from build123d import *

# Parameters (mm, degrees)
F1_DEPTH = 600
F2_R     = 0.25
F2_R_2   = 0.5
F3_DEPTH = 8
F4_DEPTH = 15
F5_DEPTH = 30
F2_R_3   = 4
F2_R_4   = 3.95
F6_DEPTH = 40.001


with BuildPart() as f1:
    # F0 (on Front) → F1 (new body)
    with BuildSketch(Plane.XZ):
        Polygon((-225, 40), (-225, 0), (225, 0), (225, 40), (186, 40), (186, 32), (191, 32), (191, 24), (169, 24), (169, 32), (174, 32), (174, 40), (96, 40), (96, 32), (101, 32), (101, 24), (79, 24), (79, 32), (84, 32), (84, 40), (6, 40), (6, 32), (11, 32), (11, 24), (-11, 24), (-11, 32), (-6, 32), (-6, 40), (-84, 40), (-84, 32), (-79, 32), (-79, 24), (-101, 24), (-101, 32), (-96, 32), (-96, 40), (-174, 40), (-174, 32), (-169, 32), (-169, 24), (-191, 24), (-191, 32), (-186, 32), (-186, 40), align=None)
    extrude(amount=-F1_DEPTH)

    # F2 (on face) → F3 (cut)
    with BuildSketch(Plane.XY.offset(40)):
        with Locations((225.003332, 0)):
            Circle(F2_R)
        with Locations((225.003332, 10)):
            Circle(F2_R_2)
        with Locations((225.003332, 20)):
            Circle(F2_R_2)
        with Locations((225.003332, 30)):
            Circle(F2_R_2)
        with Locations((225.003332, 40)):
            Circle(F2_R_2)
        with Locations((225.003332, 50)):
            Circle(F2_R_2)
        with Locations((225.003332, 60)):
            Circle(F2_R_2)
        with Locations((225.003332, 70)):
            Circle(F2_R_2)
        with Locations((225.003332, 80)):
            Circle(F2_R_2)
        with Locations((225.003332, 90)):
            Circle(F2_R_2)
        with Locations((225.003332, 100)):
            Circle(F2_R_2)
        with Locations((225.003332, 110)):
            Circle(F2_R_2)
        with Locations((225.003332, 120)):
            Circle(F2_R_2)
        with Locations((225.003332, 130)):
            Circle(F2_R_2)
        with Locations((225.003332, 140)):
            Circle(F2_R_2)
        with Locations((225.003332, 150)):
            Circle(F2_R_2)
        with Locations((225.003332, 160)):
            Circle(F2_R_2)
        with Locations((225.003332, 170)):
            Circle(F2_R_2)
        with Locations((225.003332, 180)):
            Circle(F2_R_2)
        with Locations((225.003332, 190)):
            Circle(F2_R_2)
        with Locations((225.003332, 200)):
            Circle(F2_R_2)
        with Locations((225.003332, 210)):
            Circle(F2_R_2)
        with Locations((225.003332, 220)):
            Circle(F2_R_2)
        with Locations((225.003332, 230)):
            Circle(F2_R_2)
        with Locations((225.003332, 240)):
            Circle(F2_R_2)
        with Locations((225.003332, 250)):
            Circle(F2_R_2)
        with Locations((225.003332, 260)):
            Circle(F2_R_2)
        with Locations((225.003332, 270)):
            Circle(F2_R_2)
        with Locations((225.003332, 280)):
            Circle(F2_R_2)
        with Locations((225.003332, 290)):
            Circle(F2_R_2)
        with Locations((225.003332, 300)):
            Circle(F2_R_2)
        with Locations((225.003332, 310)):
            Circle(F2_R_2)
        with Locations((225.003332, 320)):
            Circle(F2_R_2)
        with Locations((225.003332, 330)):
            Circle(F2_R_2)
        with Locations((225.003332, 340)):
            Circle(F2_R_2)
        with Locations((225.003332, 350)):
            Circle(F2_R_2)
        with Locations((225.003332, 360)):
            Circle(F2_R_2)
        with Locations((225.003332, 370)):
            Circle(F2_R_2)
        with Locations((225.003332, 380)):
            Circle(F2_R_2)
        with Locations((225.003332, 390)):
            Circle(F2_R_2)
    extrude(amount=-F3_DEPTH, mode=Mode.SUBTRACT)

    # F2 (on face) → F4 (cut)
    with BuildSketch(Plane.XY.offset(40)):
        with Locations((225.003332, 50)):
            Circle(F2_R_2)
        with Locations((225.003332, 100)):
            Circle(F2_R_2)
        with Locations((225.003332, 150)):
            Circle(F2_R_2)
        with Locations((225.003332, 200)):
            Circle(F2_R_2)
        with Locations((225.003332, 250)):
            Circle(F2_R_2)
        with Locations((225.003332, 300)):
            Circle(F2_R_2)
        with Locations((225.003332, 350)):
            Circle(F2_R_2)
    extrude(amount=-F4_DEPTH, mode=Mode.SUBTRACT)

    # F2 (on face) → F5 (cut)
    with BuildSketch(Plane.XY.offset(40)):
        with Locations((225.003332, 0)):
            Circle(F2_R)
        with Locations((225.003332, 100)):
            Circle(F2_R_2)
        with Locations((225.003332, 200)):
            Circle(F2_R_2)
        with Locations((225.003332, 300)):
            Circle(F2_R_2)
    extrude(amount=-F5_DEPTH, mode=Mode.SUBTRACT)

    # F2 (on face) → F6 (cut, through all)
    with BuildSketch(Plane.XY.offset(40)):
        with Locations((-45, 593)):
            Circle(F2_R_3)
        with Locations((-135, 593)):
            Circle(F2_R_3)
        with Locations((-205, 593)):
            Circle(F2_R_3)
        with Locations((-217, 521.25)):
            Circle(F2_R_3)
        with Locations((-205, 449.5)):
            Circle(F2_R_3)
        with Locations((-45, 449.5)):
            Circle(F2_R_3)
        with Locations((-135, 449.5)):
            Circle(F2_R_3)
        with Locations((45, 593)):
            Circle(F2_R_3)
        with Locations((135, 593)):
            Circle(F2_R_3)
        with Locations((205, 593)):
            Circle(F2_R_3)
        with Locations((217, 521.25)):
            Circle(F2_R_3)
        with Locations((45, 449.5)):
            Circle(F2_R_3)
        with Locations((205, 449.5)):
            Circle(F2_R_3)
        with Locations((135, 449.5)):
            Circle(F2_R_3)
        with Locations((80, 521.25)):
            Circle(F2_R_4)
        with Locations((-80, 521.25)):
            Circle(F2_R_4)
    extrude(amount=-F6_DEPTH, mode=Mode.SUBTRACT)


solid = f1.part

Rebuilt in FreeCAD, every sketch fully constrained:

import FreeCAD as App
import Part
import Sketcher

V = App.Vector


def add_polygon(sketch, points):
    """Adds a closed chain of lines whose ends are joined by coincident constraints."""
    first, n = sketch.GeometryCount, len(points)
    for a, b in zip(points, points[1:] + points[:1]):
        sketch.addGeometry(Part.LineSegment(App.Vector(*a, 0), App.Vector(*b, 0)), False)
    for i in range(n):
        sketch.addConstraint(Sketcher.Constraint("Coincident", first + i, 2, first + (i + 1) % n, 1))

doc = App.newDocument("Part")
body = doc.addObject("PartDesign::Body", "Body")

# Sketch on XZ plane
sketch1 = doc.addObject("Sketcher::SketchObject", "Sketch")
body.addObject(sketch1)
sketch1.AttachmentSupport = (doc.XZ_Plane, [""])
sketch1.MapMode = "FlatFace"
add_polygon(sketch1, [(-225, 40), (-225, 0), (225, 0), (225, 40), (186, 40), (186, 32), (191, 32), (191, 24), (169, 24), (169, 32), (174, 32), (174, 40), (96, 40), (96, 32), (101, 32), (101, 24), (79, 24), (79, 32), (84, 32), (84, 40), (6, 40), (6, 32), (11, 32), (11, 24), (-11, 24), (-11, 32), (-6, 32), (-6, 40), (-84, 40), (-84, 32), (-79, 32), (-79, 24), (-101, 24), (-101, 32), (-96, 32), (-96, 40), (-174, 40), (-174, 32), (-169, 32), (-169, 24), (-191, 24), (-191, 32), (-186, 32), (-186, 40)])  # lines 0-43
sketch1.addConstraint([
    Sketcher.Constraint("Vertical", 0),
    Sketcher.Constraint("Horizontal", 1),
    Sketcher.Constraint("Vertical", 2),
    Sketcher.Constraint("Horizontal", 3),
    Sketcher.Constraint("Vertical", 4),
    Sketcher.Constraint("Horizontal", 5),
    Sketcher.Constraint("Vertical", 6),
    Sketcher.Constraint("Horizontal", 7),
    Sketcher.Constraint("Vertical", 8),
    Sketcher.Constraint("Horizontal", 9),
    Sketcher.Constraint("Vertical", 10),
    Sketcher.Constraint("Horizontal", 11),
    Sketcher.Constraint("Vertical", 12),
    Sketcher.Constraint("Horizontal", 13),
    Sketcher.Constraint("Vertical", 14),
    Sketcher.Constraint("Horizontal", 15),
    Sketcher.Constraint("Vertical", 16),
    Sketcher.Constraint("Horizontal", 17),
    Sketcher.Constraint("Vertical", 18),
    Sketcher.Constraint("Horizontal", 19),
    Sketcher.Constraint("Vertical", 20),
    Sketcher.Constraint("Horizontal", 21),
    Sketcher.Constraint("Vertical", 22),
    Sketcher.Constraint("Horizontal", 23),
    Sketcher.Constraint("Vertical", 24),
    Sketcher.Constraint("Horizontal", 25),
    Sketcher.Constraint("Vertical", 26),
    Sketcher.Constraint("Horizontal", 27),
    Sketcher.Constraint("Vertical", 28),
    Sketcher.Constraint("Horizontal", 29),
    Sketcher.Constraint("Vertical", 30),
    Sketcher.Constraint("Horizontal", 31),
    Sketcher.Constraint("Vertical", 32),
    Sketcher.Constraint("Horizontal", 33),
    Sketcher.Constraint("Vertical", 34),
    Sketcher.Constraint("Horizontal", 35),
    Sketcher.Constraint("Vertical", 36),
    Sketcher.Constraint("Horizontal", 37),
    Sketcher.Constraint("Vertical", 38),
    Sketcher.Constraint("Horizontal", 39),
    Sketcher.Constraint("Vertical", 40),
    Sketcher.Constraint("Horizontal", 41),
    Sketcher.Constraint("Vertical", 42),
    Sketcher.Constraint("Horizontal", 43),
    Sketcher.Constraint("Symmetric", 0, 2, 1, 2, -1, 1),
    Sketcher.Constraint("Symmetric", 21, 2, 24, 2, -2),
    Sketcher.Constraint("Symmetric", 19, 2, 26, 2, -2),
    Sketcher.Constraint("Symmetric", 17, 2, 28, 2, -2),
    Sketcher.Constraint("Symmetric", 15, 2, 30, 2, -2),
    Sketcher.Constraint("Symmetric", 13, 2, 32, 2, -2),
    Sketcher.Constraint("Symmetric", 11, 2, 34, 2, -2),
    Sketcher.Constraint("Symmetric", 9, 2, 36, 2, -2),
    Sketcher.Constraint("Symmetric", 7, 2, 38, 2, -2),
    Sketcher.Constraint("Symmetric", 5, 2, 40, 2, -2),
    Sketcher.Constraint("Symmetric", 3, 2, 42, 2, -2),
    Sketcher.Constraint("Horizontal", 5, 2, 8, 2),
    Sketcher.Constraint("Horizontal", 3, 2, 10, 2),
    Sketcher.Constraint("Horizontal", 9, 2, 12, 2),
    Sketcher.Constraint("Horizontal", 7, 2, 14, 2),
    Sketcher.Constraint("Horizontal", 13, 2, 16, 2),
    Sketcher.Constraint("Horizontal", 11, 2, 18, 2),
    Sketcher.Constraint("Horizontal", 17, 2, 20, 2),
    Sketcher.Constraint("Horizontal", 15, 2, 22, 2),
    Sketcher.Constraint("Equal", 5, 9),
    Sketcher.Constraint("Equal", 9, 13),
    Sketcher.Constraint("Equal", 7, 15),
    Sketcher.Constraint("Equal", 13, 17),
    Sketcher.Constraint("Equal", 11, 19),
    Sketcher.Constraint("Equal", 17, 21),
    Sketcher.Constraint("Equal", 15, 23),
    Sketcher.Constraint("Equal", 4, 6),
    Sketcher.Constraint("DistanceX", 1, 1, 1, 2, 450.0),
    Sketcher.Constraint("DistanceX", 3, 2, 3, 1, 39.0),
    Sketcher.Constraint("DistanceX", 5, 1, 5, 2, 5.0),
    Sketcher.Constraint("DistanceX", 7, 2, 7, 1, 22.0),
    Sketcher.Constraint("DistanceY", 0, 2, 0, 1, 40.0),
    Sketcher.Constraint("DistanceY", 4, 2, 4, 1, 8.0),
])
pad1 = doc.addObject("PartDesign::Pad", "Pad")
body.addObject(pad1)
pad1.Profile = sketch1
pad1.Length = 600
pad1.Reversed = True

# Sketch on XY plane
sketch2 = doc.addObject("Sketcher::SketchObject", "Sketch001")
body.addObject(sketch2)
sketch2.AttachmentSupport = (doc.XY_Plane, [""])
sketch2.MapMode = "FlatFace"
sketch2.AttachmentOffset = App.Placement(V(0, 0, 40), App.Rotation())
sketch2.addGeometry([
    Part.Circle(V(225, 0, 0), V(0, 0, 1), 0.25),  # 0
    Part.Circle(V(225, 10, 0), V(0, 0, 1), 0.5),  # 1
    Part.Circle(V(225, 20, 0), V(0, 0, 1), 0.5),  # 2
    Part.Circle(V(225, 30, 0), V(0, 0, 1), 0.5),  # 3
    Part.Circle(V(225, 40, 0), V(0, 0, 1), 0.5),  # 4
    Part.Circle(V(225, 50, 0), V(0, 0, 1), 0.5),  # 5
    Part.Circle(V(225, 60, 0), V(0, 0, 1), 0.5),  # 6
    Part.Circle(V(225, 70, 0), V(0, 0, 1), 0.5),  # 7
    Part.Circle(V(225, 80, 0), V(0, 0, 1), 0.5),  # 8
    Part.Circle(V(225, 90, 0), V(0, 0, 1), 0.5),  # 9
    Part.Circle(V(225, 100, 0), V(0, 0, 1), 0.5),  # 10
    Part.Circle(V(225, 110, 0), V(0, 0, 1), 0.5),  # 11
    Part.Circle(V(225, 120, 0), V(0, 0, 1), 0.5),  # 12
    Part.Circle(V(225, 130, 0), V(0, 0, 1), 0.5),  # 13
    Part.Circle(V(225, 140, 0), V(0, 0, 1), 0.5),  # 14
    Part.Circle(V(225, 150, 0), V(0, 0, 1), 0.5),  # 15
    Part.Circle(V(225, 160, 0), V(0, 0, 1), 0.5),  # 16
    Part.Circle(V(225, 170, 0), V(0, 0, 1), 0.5),  # 17
    Part.Circle(V(225, 180, 0), V(0, 0, 1), 0.5),  # 18
    Part.Circle(V(225, 190, 0), V(0, 0, 1), 0.5),  # 19
    Part.Circle(V(225, 200, 0), V(0, 0, 1), 0.5),  # 20
    Part.Circle(V(225, 210, 0), V(0, 0, 1), 0.5),  # 21
    Part.Circle(V(225, 220, 0), V(0, 0, 1), 0.5),  # 22
    Part.Circle(V(225, 230, 0), V(0, 0, 1), 0.5),  # 23
    Part.Circle(V(225, 240, 0), V(0, 0, 1), 0.5),  # 24
    Part.Circle(V(225, 250, 0), V(0, 0, 1), 0.5),  # 25
    Part.Circle(V(225, 260, 0), V(0, 0, 1), 0.5),  # 26
    Part.Circle(V(225, 270, 0), V(0, 0, 1), 0.5),  # 27
    Part.Circle(V(225, 280, 0), V(0, 0, 1), 0.5),  # 28
    Part.Circle(V(225, 290, 0), V(0, 0, 1), 0.5),  # 29
    Part.Circle(V(225, 300, 0), V(0, 0, 1), 0.5),  # 30
    Part.Circle(V(225, 310, 0), V(0, 0, 1), 0.5),  # 31
    Part.Circle(V(225, 320, 0), V(0, 0, 1), 0.5),  # 32
    Part.Circle(V(225, 330, 0), V(0, 0, 1), 0.5),  # 33
    Part.Circle(V(225, 340, 0), V(0, 0, 1), 0.5),  # 34
    Part.Circle(V(225, 350, 0), V(0, 0, 1), 0.5),  # 35
    Part.Circle(V(225, 360, 0), V(0, 0, 1), 0.5),  # 36
    Part.Circle(V(225, 370, 0), V(0, 0, 1), 0.5),  # 37
    Part.Circle(V(225, 380, 0), V(0, 0, 1), 0.5),  # 38
    Part.Circle(V(225, 390, 0), V(0, 0, 1), 0.5),  # 39
], False)
sketch2.addConstraint([
    Sketcher.Constraint("Equal", 1, 2),
    Sketcher.Constraint("Equal", 2, 3),
    Sketcher.Constraint("Equal", 3, 4),
    Sketcher.Constraint("Equal", 4, 5),
    Sketcher.Constraint("Equal", 5, 6),
    Sketcher.Constraint("Equal", 6, 7),
    Sketcher.Constraint("Equal", 7, 8),
    Sketcher.Constraint("Equal", 8, 9),
    Sketcher.Constraint("Equal", 9, 10),
    Sketcher.Constraint("Equal", 10, 11),
    Sketcher.Constraint("Equal", 11, 12),
    Sketcher.Constraint("Equal", 12, 13),
    Sketcher.Constraint("Equal", 13, 14),
    Sketcher.Constraint("Equal", 14, 15),
    Sketcher.Constraint("Equal", 15, 16),
    Sketcher.Constraint("Equal", 16, 17),
    Sketcher.Constraint("Equal", 17, 18),
    Sketcher.Constraint("Equal", 18, 19),
    Sketcher.Constraint("Equal", 19, 20),
    Sketcher.Constraint("Equal", 20, 21),
    Sketcher.Constraint("Equal", 21, 22),
    Sketcher.Constraint("Equal", 22, 23),
    Sketcher.Constraint("Equal", 23, 24),
    Sketcher.Constraint("Equal", 24, 25),
    Sketcher.Constraint("Equal", 25, 26),
    Sketcher.Constraint("Equal", 26, 27),
    Sketcher.Constraint("Equal", 27, 28),
    Sketcher.Constraint("Equal", 28, 29),
    Sketcher.Constraint("Equal", 29, 30),
    Sketcher.Constraint("Equal", 30, 31),
    Sketcher.Constraint("Equal", 31, 32),
    Sketcher.Constraint("Equal", 32, 33),
    Sketcher.Constraint("Equal", 33, 34),
    Sketcher.Constraint("Equal", 34, 35),
    Sketcher.Constraint("Equal", 35, 36),
    Sketcher.Constraint("Equal", 36, 37),
    Sketcher.Constraint("Equal", 37, 38),
    Sketcher.Constraint("Equal", 38, 39),
    Sketcher.Constraint("PointOnObject", 0, 3, -1),
    Sketcher.Constraint("Vertical", 0, 3, 1, 3),
    Sketcher.Constraint("Vertical", 1, 3, 2, 3),
    Sketcher.Constraint("Vertical", 2, 3, 3, 3),
    Sketcher.Constraint("Vertical", 3, 3, 4, 3),
    Sketcher.Constraint("Vertical", 4, 3, 5, 3),
    Sketcher.Constraint("Vertical", 5, 3, 6, 3),
    Sketcher.Constraint("Vertical", 6, 3, 7, 3),
    Sketcher.Constraint("Vertical", 7, 3, 8, 3),
    Sketcher.Constraint("Vertical", 8, 3, 9, 3),
    Sketcher.Constraint("Vertical", 9, 3, 10, 3),
    Sketcher.Constraint("Vertical", 10, 3, 11, 3),
    Sketcher.Constraint("Vertical", 11, 3, 12, 3),
    Sketcher.Constraint("Vertical", 12, 3, 13, 3),
    Sketcher.Constraint("Vertical", 13, 3, 14, 3),
    Sketcher.Constraint("Vertical", 14, 3, 15, 3),
    Sketcher.Constraint("Vertical", 15, 3, 16, 3),
    Sketcher.Constraint("Vertical", 16, 3, 17, 3),
    Sketcher.Constraint("Vertical", 17, 3, 18, 3),
    Sketcher.Constraint("Vertical", 18, 3, 19, 3),
    Sketcher.Constraint("Vertical", 19, 3, 20, 3),
    Sketcher.Constraint("Vertical", 20, 3, 21, 3),
    Sketcher.Constraint("Vertical", 21, 3, 22, 3),
    Sketcher.Constraint("Vertical", 22, 3, 23, 3),
    Sketcher.Constraint("Vertical", 23, 3, 24, 3),
    Sketcher.Constraint("Vertical", 24, 3, 25, 3),
    Sketcher.Constraint("Vertical", 25, 3, 26, 3),
    Sketcher.Constraint("Vertical", 26, 3, 27, 3),
    Sketcher.Constraint("Vertical", 27, 3, 28, 3),
    Sketcher.Constraint("Vertical", 28, 3, 29, 3),
    Sketcher.Constraint("Vertical", 29, 3, 30, 3),
    Sketcher.Constraint("Vertical", 30, 3, 31, 3),
    Sketcher.Constraint("Vertical", 31, 3, 32, 3),
    Sketcher.Constraint("Vertical", 32, 3, 33, 3),
    Sketcher.Constraint("Vertical", 33, 3, 34, 3),
    Sketcher.Constraint("Vertical", 34, 3, 35, 3),
    Sketcher.Constraint("Vertical", 35, 3, 36, 3),
    Sketcher.Constraint("Vertical", 36, 3, 37, 3),
    Sketcher.Constraint("Vertical", 37, 3, 38, 3),
    Sketcher.Constraint("Vertical", 38, 3, 39, 3),
    Sketcher.Constraint("Diameter", 1, 1.0),
    Sketcher.Constraint("Diameter", 0, 0.5),
    Sketcher.Constraint("DistanceY", -1, 1, 1, 3, 10.0),
    Sketcher.Constraint("DistanceY", -1, 1, 2, 3, 20.0),
    Sketcher.Constraint("DistanceY", -1, 1, 3, 3, 30.0),
    Sketcher.Constraint("DistanceY", -1, 1, 4, 3, 40.0),
    Sketcher.Constraint("DistanceY", -1, 1, 5, 3, 50.0),
    Sketcher.Constraint("DistanceY", -1, 1, 6, 3, 60.0),
    Sketcher.Constraint("DistanceY", -1, 1, 7, 3, 70.0),
    Sketcher.Constraint("DistanceY", -1, 1, 8, 3, 80.0),
    Sketcher.Constraint("DistanceY", -1, 1, 9, 3, 90.0),
    Sketcher.Constraint("DistanceY", -1, 1, 10, 3, 100.0),
    Sketcher.Constraint("DistanceY", -1, 1, 11, 3, 110.0),
    Sketcher.Constraint("DistanceY", -1, 1, 12, 3, 120.0),
    Sketcher.Constraint("DistanceY", -1, 1, 13, 3, 130.0),
    Sketcher.Constraint("DistanceY", -1, 1, 14, 3, 140.0),
    Sketcher.Constraint("DistanceY", -1, 1, 15, 3, 150.0),
    Sketcher.Constraint("DistanceY", -1, 1, 16, 3, 160.0),
    Sketcher.Constraint("DistanceY", -1, 1, 17, 3, 170.0),
    Sketcher.Constraint("DistanceY", -1, 1, 18, 3, 180.0),
    Sketcher.Constraint("DistanceY", -1, 1, 19, 3, 190.0),
    Sketcher.Constraint("DistanceY", -1, 1, 20, 3, 200.0),
    Sketcher.Constraint("DistanceY", -1, 1, 21, 3, 210.0),
    Sketcher.Constraint("DistanceY", -1, 1, 22, 3, 220.0),
    Sketcher.Constraint("DistanceY", -1, 1, 23, 3, 230.0),
    Sketcher.Constraint("DistanceY", -1, 1, 24, 3, 240.0),
    Sketcher.Constraint("DistanceY", -1, 1, 25, 3, 250.0),
    Sketcher.Constraint("DistanceY", -1, 1, 26, 3, 260.0),
    Sketcher.Constraint("DistanceY", -1, 1, 27, 3, 270.0),
    Sketcher.Constraint("DistanceY", -1, 1, 28, 3, 280.0),
    Sketcher.Constraint("DistanceY", -1, 1, 29, 3, 290.0),
    Sketcher.Constraint("DistanceY", -1, 1, 30, 3, 300.0),
    Sketcher.Constraint("DistanceY", -1, 1, 31, 3, 310.0),
    Sketcher.Constraint("DistanceY", -1, 1, 32, 3, 320.0),
    Sketcher.Constraint("DistanceY", -1, 1, 33, 3, 330.0),
    Sketcher.Constraint("DistanceY", -1, 1, 34, 3, 340.0),
    Sketcher.Constraint("DistanceY", -1, 1, 35, 3, 350.0),
    Sketcher.Constraint("DistanceY", -1, 1, 36, 3, 360.0),
    Sketcher.Constraint("DistanceY", -1, 1, 37, 3, 370.0),
    Sketcher.Constraint("DistanceY", -1, 1, 38, 3, 380.0),
    Sketcher.Constraint("DistanceY", -1, 1, 39, 3, 390.0),
    Sketcher.Constraint("DistanceX", -1, 1, 0, 3, 225.003332),
])
pocket1 = doc.addObject("PartDesign::Pocket", "Pocket")
body.addObject(pocket1)
pocket1.Profile = sketch2
pocket1.Length = 8

# Sketch on XY plane
sketch3 = doc.addObject("Sketcher::SketchObject", "Sketch002")
body.addObject(sketch3)
sketch3.AttachmentSupport = (doc.XY_Plane, [""])
sketch3.MapMode = "FlatFace"
sketch3.AttachmentOffset = App.Placement(V(0, 0, 40), App.Rotation())
sketch3.addGeometry([
    Part.Circle(V(225, 50, 0), V(0, 0, 1), 0.5),  # 0
    Part.Circle(V(225, 100, 0), V(0, 0, 1), 0.5),  # 1
    Part.Circle(V(225, 150, 0), V(0, 0, 1), 0.5),  # 2
    Part.Circle(V(225, 200, 0), V(0, 0, 1), 0.5),  # 3
    Part.Circle(V(225, 250, 0), V(0, 0, 1), 0.5),  # 4
    Part.Circle(V(225, 300, 0), V(0, 0, 1), 0.5),  # 5
    Part.Circle(V(225, 350, 0), V(0, 0, 1), 0.5),  # 6
], False)
sketch3.addConstraint([
    Sketcher.Constraint("Equal", 0, 1),
    Sketcher.Constraint("Equal", 1, 2),
    Sketcher.Constraint("Equal", 2, 3),
    Sketcher.Constraint("Equal", 3, 4),
    Sketcher.Constraint("Equal", 4, 5),
    Sketcher.Constraint("Equal", 5, 6),
    Sketcher.Constraint("Vertical", 0, 3, 1, 3),
    Sketcher.Constraint("Vertical", 1, 3, 2, 3),
    Sketcher.Constraint("Vertical", 2, 3, 3, 3),
    Sketcher.Constraint("Vertical", 3, 3, 4, 3),
    Sketcher.Constraint("Vertical", 4, 3, 5, 3),
    Sketcher.Constraint("Vertical", 5, 3, 6, 3),
    Sketcher.Constraint("Diameter", 0, 1.0),
    Sketcher.Constraint("DistanceY", -1, 1, 0, 3, 50.0),
    Sketcher.Constraint("DistanceY", -1, 1, 1, 3, 100.0),
    Sketcher.Constraint("DistanceY", -1, 1, 2, 3, 150.0),
    Sketcher.Constraint("DistanceY", -1, 1, 3, 3, 200.0),
    Sketcher.Constraint("DistanceY", -1, 1, 4, 3, 250.0),
    Sketcher.Constraint("DistanceY", -1, 1, 5, 3, 300.0),
    Sketcher.Constraint("DistanceY", -1, 1, 6, 3, 350.0),
    Sketcher.Constraint("DistanceX", -1, 1, 0, 3, 225.003332),
])
pocket2 = doc.addObject("PartDesign::Pocket", "Pocket001")
body.addObject(pocket2)
pocket2.Profile = sketch3
pocket2.Length = 15

# Sketch on XY plane
sketch4 = doc.addObject("Sketcher::SketchObject", "Sketch003")
body.addObject(sketch4)
sketch4.AttachmentSupport = (doc.XY_Plane, [""])
sketch4.MapMode = "FlatFace"
sketch4.AttachmentOffset = App.Placement(V(0, 0, 40), App.Rotation())
sketch4.addGeometry([
    Part.Circle(V(225, 0, 0), V(0, 0, 1), 0.25),
    Part.Circle(V(225, 100, 0), V(0, 0, 1), 0.5),
    Part.Circle(V(225, 200, 0), V(0, 0, 1), 0.5),
    Part.Circle(V(225, 300, 0), V(0, 0, 1), 0.5),
], False)
sketch4.addConstraint([
    Sketcher.Constraint("Equal", 1, 2),
    Sketcher.Constraint("Equal", 2, 3),
    Sketcher.Constraint("PointOnObject", 0, 3, -1),
    Sketcher.Constraint("Vertical", 0, 3, 1, 3),
    Sketcher.Constraint("Vertical", 1, 3, 2, 3),
    Sketcher.Constraint("Vertical", 2, 3, 3, 3),
    Sketcher.Constraint("Diameter", 1, 1.0),
    Sketcher.Constraint("Diameter", 0, 0.5),
    Sketcher.Constraint("DistanceY", -1, 1, 1, 3, 100.0),
    Sketcher.Constraint("DistanceY", -1, 1, 2, 3, 200.0),
    Sketcher.Constraint("DistanceY", -1, 1, 3, 3, 300.0),
    Sketcher.Constraint("DistanceX", -1, 1, 0, 3, 225.003332),
])
pocket3 = doc.addObject("PartDesign::Pocket", "Pocket002")
body.addObject(pocket3)
pocket3.Profile = sketch4
pocket3.Length = 30

# Sketch on XY plane
sketch5 = doc.addObject("Sketcher::SketchObject", "Sketch004")
body.addObject(sketch5)
sketch5.AttachmentSupport = (doc.XY_Plane, [""])
sketch5.MapMode = "FlatFace"
sketch5.AttachmentOffset = App.Placement(V(0, 0, 40), App.Rotation())
sketch5.addGeometry([
    Part.Circle(V(-45, 593, 0), V(0, 0, 1), 4),  # 0
    Part.Circle(V(-135, 593, 0), V(0, 0, 1), 4),  # 1
    Part.Circle(V(-205, 593, 0), V(0, 0, 1), 4),  # 2
    Part.Circle(V(-217, 521.2, 0), V(0, 0, 1), 4),  # 3
    Part.Circle(V(-205, 449.5, 0), V(0, 0, 1), 4),  # 4
    Part.Circle(V(-45, 449.5, 0), V(0, 0, 1), 4),  # 5
    Part.Circle(V(-135, 449.5, 0), V(0, 0, 1), 4),  # 6
    Part.Circle(V(45, 593, 0), V(0, 0, 1), 4),  # 7
    Part.Circle(V(135, 593, 0), V(0, 0, 1), 4),  # 8
    Part.Circle(V(205, 593, 0), V(0, 0, 1), 4),  # 9
    Part.Circle(V(217, 521.2, 0), V(0, 0, 1), 4),  # 10
    Part.Circle(V(45, 449.5, 0), V(0, 0, 1), 4),  # 11
    Part.Circle(V(205, 449.5, 0), V(0, 0, 1), 4),  # 12
    Part.Circle(V(135, 449.5, 0), V(0, 0, 1), 4),  # 13
    Part.Circle(V(80, 521.2, 0), V(0, 0, 1), 4),  # 14
    Part.Circle(V(-80, 521.2, 0), V(0, 0, 1), 4),  # 15
], False)
sketch5.addConstraint([
    Sketcher.Constraint("Equal", 0, 1),
    Sketcher.Constraint("Equal", 1, 2),
    Sketcher.Constraint("Equal", 2, 3),
    Sketcher.Constraint("Equal", 3, 4),
    Sketcher.Constraint("Equal", 4, 5),
    Sketcher.Constraint("Equal", 5, 6),
    Sketcher.Constraint("Equal", 6, 7),
    Sketcher.Constraint("Equal", 7, 8),
    Sketcher.Constraint("Equal", 8, 9),
    Sketcher.Constraint("Equal", 9, 10),
    Sketcher.Constraint("Equal", 10, 11),
    Sketcher.Constraint("Equal", 11, 12),
    Sketcher.Constraint("Equal", 12, 13),
    Sketcher.Constraint("Equal", 14, 15),
    Sketcher.Constraint("Symmetric", 0, 3, 7, 3, -2),
    Sketcher.Constraint("Symmetric", 1, 3, 8, 3, -2),
    Sketcher.Constraint("Symmetric", 2, 3, 9, 3, -2),
    Sketcher.Constraint("Symmetric", 3, 3, 10, 3, -2),
    Sketcher.Constraint("Symmetric", 5, 3, 11, 3, -2),
    Sketcher.Constraint("Symmetric", 4, 3, 12, 3, -2),
    Sketcher.Constraint("Symmetric", 6, 3, 13, 3, -2),
    Sketcher.Constraint("Symmetric", 14, 3, 15, 3, -2),
    Sketcher.Constraint("Horizontal", 0, 3, 1, 3),
    Sketcher.Constraint("Horizontal", 1, 3, 2, 3),
    Sketcher.Constraint("Horizontal", 4, 3, 5, 3),
    Sketcher.Constraint("Horizontal", 5, 3, 6, 3),
    Sketcher.Constraint("Horizontal", 10, 3, 14, 3),
    Sketcher.Constraint("Vertical", 2, 3, 4, 3),
    Sketcher.Constraint("Vertical", 0, 3, 5, 3),
    Sketcher.Constraint("Vertical", 1, 3, 6, 3),
    Sketcher.Constraint("Diameter", 0, 8.0),
    Sketcher.Constraint("Diameter", 14, 7.9),
    Sketcher.Constraint("DistanceX", 0, 3, -1, 1, 45.0),
    Sketcher.Constraint("DistanceY", -1, 1, 0, 3, 593.0),
    Sketcher.Constraint("DistanceX", 1, 3, -1, 1, 135.0),
    Sketcher.Constraint("DistanceX", 2, 3, -1, 1, 205.0),
    Sketcher.Constraint("DistanceX", 3, 3, -1, 1, 217.0),
    Sketcher.Constraint("DistanceX", -1, 1, 14, 3, 80.0),
    Sketcher.Constraint("DistanceY", -1, 1, 4, 3, 449.5),
    Sketcher.Constraint("DistanceY", -1, 1, 3, 3, 521.25),
])
pocket4 = doc.addObject("PartDesign::Pocket", "Pocket003")
body.addObject(pocket4)
pocket4.Profile = sketch5
pocket4.Type = "ThroughAll"

doc.recompute()
